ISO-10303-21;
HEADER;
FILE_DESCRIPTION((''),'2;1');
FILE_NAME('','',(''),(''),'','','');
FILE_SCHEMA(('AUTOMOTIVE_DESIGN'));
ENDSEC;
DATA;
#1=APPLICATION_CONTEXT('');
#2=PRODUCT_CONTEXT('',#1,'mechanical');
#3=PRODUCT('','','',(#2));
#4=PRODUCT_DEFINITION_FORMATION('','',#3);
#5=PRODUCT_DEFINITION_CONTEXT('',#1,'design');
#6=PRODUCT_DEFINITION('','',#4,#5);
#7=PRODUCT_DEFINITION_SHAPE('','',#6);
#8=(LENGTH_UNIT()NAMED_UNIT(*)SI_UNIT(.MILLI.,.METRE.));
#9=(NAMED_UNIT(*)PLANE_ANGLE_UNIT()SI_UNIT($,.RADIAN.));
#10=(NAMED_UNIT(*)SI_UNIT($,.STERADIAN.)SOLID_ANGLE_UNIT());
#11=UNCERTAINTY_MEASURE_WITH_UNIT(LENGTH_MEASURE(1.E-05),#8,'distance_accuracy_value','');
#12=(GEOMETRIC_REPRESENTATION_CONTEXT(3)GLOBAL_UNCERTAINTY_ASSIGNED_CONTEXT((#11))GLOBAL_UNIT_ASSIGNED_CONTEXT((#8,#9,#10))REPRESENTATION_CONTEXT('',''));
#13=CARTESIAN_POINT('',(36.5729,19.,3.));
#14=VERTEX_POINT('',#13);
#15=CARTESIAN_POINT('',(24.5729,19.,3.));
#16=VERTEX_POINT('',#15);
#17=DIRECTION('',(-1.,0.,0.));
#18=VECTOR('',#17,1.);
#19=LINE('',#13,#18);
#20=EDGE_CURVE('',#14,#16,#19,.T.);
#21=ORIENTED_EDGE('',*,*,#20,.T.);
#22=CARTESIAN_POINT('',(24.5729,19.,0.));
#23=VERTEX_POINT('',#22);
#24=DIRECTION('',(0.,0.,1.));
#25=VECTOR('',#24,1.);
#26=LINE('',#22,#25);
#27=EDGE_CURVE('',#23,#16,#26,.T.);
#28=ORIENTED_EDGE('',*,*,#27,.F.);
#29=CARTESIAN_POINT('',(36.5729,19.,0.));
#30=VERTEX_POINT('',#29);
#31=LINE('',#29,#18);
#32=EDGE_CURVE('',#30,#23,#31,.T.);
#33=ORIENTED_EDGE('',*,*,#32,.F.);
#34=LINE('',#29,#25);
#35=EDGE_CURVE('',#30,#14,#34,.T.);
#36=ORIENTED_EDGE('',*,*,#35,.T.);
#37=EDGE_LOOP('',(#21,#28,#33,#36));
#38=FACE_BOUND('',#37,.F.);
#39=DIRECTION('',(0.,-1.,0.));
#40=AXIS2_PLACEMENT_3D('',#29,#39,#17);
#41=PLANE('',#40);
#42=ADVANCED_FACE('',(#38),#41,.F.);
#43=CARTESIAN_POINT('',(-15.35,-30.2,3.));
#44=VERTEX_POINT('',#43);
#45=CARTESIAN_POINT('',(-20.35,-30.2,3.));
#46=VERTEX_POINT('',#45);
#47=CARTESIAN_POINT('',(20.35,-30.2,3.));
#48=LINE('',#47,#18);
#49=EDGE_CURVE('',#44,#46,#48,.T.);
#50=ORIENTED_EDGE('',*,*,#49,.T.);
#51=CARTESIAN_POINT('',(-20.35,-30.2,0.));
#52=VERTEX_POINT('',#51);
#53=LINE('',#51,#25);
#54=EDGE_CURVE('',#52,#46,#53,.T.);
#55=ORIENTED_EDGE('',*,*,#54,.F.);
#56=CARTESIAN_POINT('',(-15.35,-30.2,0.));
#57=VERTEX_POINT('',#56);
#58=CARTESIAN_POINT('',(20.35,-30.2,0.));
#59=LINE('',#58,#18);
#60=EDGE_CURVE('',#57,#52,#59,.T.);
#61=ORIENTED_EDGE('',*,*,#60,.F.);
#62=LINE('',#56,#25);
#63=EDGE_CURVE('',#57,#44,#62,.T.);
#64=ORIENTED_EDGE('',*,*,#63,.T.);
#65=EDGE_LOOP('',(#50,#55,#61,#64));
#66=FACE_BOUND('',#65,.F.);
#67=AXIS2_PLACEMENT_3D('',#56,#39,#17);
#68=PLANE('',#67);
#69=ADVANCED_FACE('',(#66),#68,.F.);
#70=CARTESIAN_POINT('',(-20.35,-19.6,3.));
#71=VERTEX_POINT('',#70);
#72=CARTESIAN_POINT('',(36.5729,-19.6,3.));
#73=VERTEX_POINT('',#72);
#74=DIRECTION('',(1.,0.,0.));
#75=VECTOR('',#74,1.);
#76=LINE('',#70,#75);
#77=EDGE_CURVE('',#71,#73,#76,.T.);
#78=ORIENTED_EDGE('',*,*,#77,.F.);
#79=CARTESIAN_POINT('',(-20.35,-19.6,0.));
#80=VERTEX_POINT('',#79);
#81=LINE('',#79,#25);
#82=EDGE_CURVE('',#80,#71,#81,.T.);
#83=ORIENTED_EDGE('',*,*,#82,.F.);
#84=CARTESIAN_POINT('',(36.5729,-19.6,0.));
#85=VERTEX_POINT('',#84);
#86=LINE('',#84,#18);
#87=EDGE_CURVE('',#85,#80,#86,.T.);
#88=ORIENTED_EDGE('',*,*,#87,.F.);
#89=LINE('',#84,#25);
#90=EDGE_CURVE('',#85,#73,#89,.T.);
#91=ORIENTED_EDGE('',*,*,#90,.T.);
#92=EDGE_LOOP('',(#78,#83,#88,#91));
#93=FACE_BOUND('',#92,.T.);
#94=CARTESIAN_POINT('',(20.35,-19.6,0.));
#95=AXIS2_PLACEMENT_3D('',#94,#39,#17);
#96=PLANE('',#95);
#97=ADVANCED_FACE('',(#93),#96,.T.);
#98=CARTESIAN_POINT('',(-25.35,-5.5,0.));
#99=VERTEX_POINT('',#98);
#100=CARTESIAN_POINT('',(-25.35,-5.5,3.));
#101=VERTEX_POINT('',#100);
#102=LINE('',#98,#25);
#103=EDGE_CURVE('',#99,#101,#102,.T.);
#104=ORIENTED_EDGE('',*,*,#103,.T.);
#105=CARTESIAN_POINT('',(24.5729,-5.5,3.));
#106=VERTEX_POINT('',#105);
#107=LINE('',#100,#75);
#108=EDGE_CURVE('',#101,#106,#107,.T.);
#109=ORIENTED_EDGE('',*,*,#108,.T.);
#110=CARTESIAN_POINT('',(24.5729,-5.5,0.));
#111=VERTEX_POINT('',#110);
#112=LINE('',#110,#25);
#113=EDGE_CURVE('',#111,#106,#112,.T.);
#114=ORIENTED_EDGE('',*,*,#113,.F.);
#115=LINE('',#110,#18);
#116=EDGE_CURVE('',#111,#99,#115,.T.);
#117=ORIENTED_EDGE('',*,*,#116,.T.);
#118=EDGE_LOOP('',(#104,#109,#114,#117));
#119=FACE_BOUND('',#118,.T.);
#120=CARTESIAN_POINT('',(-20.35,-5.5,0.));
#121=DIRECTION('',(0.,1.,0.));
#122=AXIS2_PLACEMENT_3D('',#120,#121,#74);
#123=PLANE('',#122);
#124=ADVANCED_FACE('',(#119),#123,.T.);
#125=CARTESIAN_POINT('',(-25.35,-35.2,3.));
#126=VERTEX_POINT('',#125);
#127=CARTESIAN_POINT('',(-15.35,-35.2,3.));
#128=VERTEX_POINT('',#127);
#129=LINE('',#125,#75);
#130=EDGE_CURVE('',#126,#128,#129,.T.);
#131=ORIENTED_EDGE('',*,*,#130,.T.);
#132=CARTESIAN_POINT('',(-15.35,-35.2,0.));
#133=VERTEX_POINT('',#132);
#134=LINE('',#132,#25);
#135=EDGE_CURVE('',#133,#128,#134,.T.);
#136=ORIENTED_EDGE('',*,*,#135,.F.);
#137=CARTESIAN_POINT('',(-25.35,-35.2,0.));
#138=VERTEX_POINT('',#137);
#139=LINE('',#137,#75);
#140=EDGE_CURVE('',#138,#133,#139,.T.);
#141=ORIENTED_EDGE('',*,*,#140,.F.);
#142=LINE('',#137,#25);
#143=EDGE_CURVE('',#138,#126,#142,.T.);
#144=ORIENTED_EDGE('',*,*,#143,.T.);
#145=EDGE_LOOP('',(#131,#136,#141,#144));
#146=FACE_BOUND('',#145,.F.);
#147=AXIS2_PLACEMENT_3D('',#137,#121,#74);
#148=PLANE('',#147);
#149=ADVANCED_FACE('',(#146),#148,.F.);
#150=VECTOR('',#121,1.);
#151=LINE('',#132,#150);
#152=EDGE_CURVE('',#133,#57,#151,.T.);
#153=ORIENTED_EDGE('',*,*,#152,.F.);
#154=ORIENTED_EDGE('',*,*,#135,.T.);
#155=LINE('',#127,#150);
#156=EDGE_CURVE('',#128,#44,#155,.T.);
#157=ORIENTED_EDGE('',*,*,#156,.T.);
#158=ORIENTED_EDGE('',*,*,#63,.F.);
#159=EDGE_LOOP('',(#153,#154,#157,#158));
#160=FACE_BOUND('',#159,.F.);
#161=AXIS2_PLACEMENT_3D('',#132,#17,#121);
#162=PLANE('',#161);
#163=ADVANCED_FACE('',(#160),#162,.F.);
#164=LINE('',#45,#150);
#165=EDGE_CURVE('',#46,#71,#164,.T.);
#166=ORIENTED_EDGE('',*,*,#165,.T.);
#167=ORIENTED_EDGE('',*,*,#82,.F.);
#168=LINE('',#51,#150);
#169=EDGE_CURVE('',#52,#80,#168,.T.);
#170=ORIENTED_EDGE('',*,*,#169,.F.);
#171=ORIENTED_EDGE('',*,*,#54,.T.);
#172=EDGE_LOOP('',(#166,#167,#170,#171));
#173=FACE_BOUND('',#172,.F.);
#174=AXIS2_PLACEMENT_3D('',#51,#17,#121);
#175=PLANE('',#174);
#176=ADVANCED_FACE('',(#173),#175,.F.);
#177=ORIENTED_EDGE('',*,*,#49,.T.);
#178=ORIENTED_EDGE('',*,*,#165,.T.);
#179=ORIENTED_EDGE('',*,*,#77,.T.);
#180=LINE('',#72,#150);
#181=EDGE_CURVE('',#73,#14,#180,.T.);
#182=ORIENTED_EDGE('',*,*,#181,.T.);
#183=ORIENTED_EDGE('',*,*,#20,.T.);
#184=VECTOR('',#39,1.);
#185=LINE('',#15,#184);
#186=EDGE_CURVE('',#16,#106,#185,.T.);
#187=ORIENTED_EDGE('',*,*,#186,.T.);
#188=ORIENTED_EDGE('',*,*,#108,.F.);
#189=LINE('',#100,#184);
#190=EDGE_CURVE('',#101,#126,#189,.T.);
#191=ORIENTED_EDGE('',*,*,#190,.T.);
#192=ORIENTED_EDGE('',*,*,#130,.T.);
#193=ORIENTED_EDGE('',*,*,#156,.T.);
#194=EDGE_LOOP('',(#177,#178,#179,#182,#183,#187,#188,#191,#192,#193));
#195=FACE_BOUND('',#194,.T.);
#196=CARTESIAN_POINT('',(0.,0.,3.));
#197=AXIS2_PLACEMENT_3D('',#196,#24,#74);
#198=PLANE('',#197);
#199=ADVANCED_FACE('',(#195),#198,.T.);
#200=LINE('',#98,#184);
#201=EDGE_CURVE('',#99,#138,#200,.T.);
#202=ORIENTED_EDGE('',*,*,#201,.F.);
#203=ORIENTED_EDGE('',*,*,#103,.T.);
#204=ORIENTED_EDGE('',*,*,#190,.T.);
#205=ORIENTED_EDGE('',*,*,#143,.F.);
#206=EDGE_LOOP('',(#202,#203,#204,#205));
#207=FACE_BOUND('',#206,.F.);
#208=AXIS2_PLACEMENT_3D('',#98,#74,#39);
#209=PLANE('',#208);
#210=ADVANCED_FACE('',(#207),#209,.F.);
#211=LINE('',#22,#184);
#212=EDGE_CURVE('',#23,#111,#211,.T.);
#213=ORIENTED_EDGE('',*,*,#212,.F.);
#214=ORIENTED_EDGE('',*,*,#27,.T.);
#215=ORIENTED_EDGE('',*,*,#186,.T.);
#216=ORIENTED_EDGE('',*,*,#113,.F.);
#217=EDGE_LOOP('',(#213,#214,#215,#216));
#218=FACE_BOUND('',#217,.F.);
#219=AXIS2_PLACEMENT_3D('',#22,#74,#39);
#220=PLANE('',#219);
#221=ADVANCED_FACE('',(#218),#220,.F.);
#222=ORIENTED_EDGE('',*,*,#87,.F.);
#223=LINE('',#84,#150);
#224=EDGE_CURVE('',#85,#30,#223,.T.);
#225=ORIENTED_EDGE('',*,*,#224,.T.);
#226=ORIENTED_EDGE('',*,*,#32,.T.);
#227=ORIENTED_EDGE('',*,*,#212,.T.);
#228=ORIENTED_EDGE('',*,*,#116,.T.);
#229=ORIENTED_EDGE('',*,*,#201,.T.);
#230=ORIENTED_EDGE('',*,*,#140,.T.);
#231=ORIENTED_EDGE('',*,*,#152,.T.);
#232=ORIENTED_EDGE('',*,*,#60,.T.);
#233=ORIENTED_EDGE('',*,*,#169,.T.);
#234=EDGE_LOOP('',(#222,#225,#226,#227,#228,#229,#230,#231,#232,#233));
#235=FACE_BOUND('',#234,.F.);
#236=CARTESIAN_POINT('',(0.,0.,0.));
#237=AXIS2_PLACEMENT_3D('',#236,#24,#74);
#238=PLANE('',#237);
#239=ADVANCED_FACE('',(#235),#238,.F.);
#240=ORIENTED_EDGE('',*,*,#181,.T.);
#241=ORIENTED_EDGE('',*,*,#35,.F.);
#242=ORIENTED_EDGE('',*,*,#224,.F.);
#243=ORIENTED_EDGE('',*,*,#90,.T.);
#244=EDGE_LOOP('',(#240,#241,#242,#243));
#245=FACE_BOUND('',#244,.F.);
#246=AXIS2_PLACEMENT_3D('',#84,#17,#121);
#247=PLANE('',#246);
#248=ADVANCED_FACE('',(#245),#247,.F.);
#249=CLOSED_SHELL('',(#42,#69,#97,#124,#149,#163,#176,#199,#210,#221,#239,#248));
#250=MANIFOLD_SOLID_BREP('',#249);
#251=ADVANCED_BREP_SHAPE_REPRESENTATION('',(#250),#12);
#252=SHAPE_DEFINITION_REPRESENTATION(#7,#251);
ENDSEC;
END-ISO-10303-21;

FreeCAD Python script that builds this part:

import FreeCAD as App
import Part
import Sketcher
Q = App.Units.Quantity


def add_polygon(sketch, points):
    """Adds a closed chain of lines whose ends are joined by coincident constraints."""
    first, n = sketch.GeometryCount, len(points)
    for a, b in zip(points, points[1:] + points[:1]):
        sketch.addGeometry(Part.LineSegment(App.Vector(*a, 0), App.Vector(*b, 0)), False)
    for i in range(n):
        sketch.addConstraint(Sketcher.Constraint("Coincident", first + i, 2, first + (i + 1) % n, 1))

doc = App.newDocument("Part")
body = doc.addObject("PartDesign::Body", "Body")

sketch1 = doc.addObject("Sketcher::SketchObject", "Sketch")
body.addObject(sketch1)
sketch1.AttachmentSupport = (doc.XY_Plane, [""])
sketch1.MapMode = "FlatFace"
add_polygon(sketch1, [(-25, -6), (-25, -35), (-15, -35), (-15, -30), (-20, -30), (-20, -20), (37, -20), (37, 19), (25, 19), (25, -6)])
sketch1.addConstraint([
    Sketcher.Constraint("Vertical", 0),
    Sketcher.Constraint("Horizontal", 1),
    Sketcher.Constraint("Vertical", 2),
    Sketcher.Constraint("Horizontal", 3),
    Sketcher.Constraint("Vertical", 4),
    Sketcher.Constraint("Horizontal", 5),
    Sketcher.Constraint("Vertical", 6),
    Sketcher.Constraint("Horizontal", 7),
    Sketcher.Constraint("Vertical", 8),
    Sketcher.Constraint("Horizontal", 9),
    Sketcher.Constraint("Equal", 3, 2),
    Sketcher.Constraint("DistanceX", 3, 2, 3, 1, Q("5 mm")),
    Sketcher.Constraint("DistanceX", 0, 2, 3, 2, Q("5 mm")),
    Sketcher.Constraint("DistanceX", 7, 2, 7, 1, Q("12 mm")),
    Sketcher.Constraint("DistanceY", 0, 2, 0, 1, Q("29.7 mm")),
    Sketcher.Constraint("DistanceY", 4, 1, 4, 2, Q("10.6 mm")),
    Sketcher.Constraint("DistanceY", 6, 1, 6, 2, Q("38.6 mm")),
    Sketcher.Constraint("DistanceY", -1, 1, 6, 2, Q("19 mm")),
    Sketcher.Constraint("DistanceX", 5, 1, 5, 2, Q("56.923 mm")),
    Sketcher.Constraint("DistanceX", 0, 2, -1, 1, Q("25.35 mm")),
])
pad1 = doc.addObject("PartDesign::Pad", "Pad")
body.addObject(pad1)
pad1.Profile = sketch1
pad1.Length = 3

doc.recompute()
